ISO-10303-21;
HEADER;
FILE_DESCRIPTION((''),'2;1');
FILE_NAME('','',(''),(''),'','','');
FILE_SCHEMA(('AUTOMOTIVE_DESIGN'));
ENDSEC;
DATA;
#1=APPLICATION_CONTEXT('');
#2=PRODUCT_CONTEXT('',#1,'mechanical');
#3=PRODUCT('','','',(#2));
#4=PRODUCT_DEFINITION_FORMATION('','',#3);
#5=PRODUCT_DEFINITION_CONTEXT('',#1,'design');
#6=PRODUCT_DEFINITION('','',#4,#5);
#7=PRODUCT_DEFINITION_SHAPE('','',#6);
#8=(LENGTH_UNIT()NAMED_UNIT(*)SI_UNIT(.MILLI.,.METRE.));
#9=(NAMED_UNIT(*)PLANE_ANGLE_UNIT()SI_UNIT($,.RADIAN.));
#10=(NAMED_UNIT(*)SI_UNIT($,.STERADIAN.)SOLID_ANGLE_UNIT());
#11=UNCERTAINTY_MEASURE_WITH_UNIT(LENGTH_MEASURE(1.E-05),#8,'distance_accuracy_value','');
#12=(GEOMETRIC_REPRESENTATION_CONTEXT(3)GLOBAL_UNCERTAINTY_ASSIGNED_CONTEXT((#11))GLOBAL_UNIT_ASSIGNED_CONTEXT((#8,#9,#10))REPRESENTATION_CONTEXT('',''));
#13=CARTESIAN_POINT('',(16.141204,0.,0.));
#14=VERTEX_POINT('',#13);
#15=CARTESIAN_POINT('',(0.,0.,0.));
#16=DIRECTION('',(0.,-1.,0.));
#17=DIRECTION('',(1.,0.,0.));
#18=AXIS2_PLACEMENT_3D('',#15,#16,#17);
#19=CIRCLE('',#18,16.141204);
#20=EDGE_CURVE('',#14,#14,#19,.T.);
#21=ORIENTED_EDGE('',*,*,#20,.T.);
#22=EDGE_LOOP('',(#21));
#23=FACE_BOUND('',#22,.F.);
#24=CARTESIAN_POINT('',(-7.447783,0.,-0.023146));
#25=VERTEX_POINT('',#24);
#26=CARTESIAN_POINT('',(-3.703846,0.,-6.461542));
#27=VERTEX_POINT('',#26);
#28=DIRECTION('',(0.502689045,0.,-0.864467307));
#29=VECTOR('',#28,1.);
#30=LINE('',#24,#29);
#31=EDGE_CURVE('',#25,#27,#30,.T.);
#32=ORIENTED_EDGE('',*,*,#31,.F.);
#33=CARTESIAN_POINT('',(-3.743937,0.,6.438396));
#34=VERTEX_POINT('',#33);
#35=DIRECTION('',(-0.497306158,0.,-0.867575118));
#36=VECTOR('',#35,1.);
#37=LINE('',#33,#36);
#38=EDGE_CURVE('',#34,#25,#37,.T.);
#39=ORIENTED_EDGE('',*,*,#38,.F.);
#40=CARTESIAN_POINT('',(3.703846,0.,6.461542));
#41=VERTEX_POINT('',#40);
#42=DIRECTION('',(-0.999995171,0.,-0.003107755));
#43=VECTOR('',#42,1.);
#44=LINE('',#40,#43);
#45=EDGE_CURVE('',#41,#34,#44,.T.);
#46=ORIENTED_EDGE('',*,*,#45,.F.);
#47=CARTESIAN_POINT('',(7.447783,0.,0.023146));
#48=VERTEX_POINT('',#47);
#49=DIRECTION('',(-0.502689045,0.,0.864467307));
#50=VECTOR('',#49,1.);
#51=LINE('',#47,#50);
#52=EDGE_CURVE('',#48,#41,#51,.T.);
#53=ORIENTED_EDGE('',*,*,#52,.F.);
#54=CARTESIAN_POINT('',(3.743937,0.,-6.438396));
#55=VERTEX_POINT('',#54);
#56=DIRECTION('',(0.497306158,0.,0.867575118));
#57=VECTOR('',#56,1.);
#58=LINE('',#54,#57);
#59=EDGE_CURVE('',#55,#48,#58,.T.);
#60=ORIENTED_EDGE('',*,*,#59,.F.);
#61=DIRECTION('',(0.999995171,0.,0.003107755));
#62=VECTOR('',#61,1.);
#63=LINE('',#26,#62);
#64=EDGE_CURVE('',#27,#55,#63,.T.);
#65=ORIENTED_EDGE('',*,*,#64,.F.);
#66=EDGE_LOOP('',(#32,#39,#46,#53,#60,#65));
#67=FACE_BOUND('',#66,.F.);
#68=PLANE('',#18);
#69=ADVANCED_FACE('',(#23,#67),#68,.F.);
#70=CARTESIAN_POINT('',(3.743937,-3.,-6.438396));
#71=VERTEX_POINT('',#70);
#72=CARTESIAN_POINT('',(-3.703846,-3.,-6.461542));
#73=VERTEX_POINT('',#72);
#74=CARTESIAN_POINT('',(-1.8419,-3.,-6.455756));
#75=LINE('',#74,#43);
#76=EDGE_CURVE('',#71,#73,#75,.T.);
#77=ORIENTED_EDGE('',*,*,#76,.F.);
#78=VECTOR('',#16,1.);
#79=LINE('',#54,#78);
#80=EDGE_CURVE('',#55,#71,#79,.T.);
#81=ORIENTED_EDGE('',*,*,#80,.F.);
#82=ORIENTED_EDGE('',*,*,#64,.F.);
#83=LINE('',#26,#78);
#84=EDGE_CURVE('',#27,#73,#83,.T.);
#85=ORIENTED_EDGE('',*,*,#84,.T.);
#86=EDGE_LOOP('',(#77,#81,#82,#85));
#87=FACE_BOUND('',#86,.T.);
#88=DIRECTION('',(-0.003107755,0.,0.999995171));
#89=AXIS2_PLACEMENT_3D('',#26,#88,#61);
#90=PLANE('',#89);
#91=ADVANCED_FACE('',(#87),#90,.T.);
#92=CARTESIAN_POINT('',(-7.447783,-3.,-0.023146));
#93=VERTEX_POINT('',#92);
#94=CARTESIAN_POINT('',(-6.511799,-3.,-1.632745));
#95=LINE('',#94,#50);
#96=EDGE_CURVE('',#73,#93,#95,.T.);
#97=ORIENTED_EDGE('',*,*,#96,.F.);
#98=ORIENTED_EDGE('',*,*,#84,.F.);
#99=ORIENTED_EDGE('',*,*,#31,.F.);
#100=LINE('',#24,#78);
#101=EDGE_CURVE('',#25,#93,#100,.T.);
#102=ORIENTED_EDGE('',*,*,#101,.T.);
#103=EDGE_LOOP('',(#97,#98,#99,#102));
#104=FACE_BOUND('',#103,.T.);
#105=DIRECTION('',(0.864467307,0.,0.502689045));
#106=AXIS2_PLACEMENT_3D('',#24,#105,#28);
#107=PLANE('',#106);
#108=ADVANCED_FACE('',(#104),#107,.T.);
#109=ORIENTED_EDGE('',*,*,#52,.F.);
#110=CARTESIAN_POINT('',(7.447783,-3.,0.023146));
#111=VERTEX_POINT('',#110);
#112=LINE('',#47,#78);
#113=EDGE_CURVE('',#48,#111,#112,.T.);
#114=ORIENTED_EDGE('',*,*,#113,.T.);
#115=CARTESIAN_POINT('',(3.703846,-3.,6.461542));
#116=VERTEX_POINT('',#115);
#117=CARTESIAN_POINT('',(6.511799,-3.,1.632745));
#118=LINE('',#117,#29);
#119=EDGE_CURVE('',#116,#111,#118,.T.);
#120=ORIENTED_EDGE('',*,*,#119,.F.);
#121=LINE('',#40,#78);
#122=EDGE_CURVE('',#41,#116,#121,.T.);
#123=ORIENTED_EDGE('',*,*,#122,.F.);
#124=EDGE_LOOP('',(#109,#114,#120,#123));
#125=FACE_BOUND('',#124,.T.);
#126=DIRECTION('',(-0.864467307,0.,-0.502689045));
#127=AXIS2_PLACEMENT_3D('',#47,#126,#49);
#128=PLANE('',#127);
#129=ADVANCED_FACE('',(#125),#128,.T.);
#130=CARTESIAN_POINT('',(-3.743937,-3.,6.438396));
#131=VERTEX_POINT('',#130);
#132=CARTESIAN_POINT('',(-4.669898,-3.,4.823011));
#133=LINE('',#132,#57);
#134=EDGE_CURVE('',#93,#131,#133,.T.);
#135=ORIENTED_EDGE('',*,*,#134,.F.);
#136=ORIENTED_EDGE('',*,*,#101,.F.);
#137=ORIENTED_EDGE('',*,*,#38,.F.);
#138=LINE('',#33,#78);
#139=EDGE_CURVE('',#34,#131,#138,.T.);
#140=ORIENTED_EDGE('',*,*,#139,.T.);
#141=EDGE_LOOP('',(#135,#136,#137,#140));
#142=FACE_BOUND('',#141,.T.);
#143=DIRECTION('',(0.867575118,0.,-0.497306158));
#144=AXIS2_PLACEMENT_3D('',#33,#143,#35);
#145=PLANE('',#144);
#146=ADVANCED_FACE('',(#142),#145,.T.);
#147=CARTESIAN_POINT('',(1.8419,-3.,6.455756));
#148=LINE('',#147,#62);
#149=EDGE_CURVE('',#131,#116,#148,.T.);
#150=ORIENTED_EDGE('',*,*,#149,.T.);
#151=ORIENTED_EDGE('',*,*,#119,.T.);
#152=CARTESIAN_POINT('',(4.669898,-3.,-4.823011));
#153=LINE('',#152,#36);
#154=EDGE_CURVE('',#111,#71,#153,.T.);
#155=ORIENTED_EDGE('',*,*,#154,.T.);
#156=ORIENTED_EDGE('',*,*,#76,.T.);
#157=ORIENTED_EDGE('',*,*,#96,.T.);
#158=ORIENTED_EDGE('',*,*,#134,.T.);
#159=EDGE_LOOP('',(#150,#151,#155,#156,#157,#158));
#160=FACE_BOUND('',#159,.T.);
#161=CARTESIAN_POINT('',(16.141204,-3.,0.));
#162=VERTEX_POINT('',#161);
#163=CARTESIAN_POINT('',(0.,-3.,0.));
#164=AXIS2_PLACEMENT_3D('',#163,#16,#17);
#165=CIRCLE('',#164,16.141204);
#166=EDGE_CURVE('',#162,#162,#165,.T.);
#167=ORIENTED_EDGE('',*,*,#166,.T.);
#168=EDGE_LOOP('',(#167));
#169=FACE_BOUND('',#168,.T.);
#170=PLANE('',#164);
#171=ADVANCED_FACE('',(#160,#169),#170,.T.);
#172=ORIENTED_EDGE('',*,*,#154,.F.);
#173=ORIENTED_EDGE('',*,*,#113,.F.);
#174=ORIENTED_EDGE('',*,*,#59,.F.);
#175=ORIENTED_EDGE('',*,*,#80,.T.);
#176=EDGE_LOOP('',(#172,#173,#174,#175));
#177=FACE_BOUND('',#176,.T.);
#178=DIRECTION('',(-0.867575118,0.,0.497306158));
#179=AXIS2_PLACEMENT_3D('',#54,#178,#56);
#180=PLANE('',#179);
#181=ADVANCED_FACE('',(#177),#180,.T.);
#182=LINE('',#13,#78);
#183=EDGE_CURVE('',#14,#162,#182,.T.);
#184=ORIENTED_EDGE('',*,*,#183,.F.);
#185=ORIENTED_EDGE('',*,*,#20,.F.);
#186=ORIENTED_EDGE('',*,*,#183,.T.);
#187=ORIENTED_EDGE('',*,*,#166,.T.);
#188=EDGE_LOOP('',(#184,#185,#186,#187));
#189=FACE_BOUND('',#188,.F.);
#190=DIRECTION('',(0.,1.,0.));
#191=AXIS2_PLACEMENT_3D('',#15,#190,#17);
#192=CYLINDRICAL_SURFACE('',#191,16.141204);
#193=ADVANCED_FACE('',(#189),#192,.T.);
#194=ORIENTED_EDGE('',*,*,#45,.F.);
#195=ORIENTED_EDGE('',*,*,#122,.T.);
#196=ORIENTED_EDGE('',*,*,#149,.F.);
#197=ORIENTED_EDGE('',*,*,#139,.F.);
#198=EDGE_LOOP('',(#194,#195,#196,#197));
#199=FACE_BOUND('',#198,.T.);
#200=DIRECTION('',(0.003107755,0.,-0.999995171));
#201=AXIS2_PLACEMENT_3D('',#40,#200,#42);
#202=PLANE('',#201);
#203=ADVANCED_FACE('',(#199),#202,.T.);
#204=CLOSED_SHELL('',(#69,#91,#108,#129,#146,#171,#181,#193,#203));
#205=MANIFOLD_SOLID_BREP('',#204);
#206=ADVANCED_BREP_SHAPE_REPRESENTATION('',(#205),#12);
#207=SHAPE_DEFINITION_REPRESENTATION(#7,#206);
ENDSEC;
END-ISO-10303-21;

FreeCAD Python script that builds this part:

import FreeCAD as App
import Part
import Sketcher

V = App.Vector


def add_polygon(sketch, points):
    """Adds a closed chain of lines whose ends are joined by coincident constraints."""
    first, n = sketch.GeometryCount, len(points)
    for a, b in zip(points, points[1:] + points[:1]):
        sketch.addGeometry(Part.LineSegment(App.Vector(*a, 0), App.Vector(*b, 0)), False)
    for i in range(n):
        sketch.addConstraint(Sketcher.Constraint("Coincident", first + i, 2, first + (i + 1) % n, 1))

doc = App.newDocument("Part")
body = doc.addObject("PartDesign::Body", "Body")

# Sketch on XZ plane
sketch1 = body.newObject("Sketcher::SketchObject", "Sketch")
sketch1.AttachmentSupport = (doc.getObject("XZ_Plane"), [""])
sketch1.MapMode = "FlatFace"
sketch1.addGeometry(Part.Circle(V(0, 0, 0), V(0, 0, 1), 16), False)
sketch1.addConstraint(Sketcher.Constraint("Coincident", 0, 3, -1, 1))
sketch1.addConstraint(Sketcher.Constraint("Diameter", 0, 32.282408))
pad1 = body.newObject("PartDesign::Pad", "Pad")
pad1.Profile = sketch1
pad1.Length = 3

# Sketch on XZ plane
sketch2 = body.newObject("Sketcher::SketchObject", "Sketch001")
sketch2.AttachmentSupport = (doc.getObject("XZ_Plane"), [""])
sketch2.MapMode = "FlatFace"
add_polygon(sketch2, [(4, -6), (7, 0), (4, 6), (-4, 6), (-7, 0), (-4, -6)])  # lines 0-5
sketch2.addConstraint(Sketcher.Constraint("Symmetric", 0, 2, 3, 2, -1, 1))
sketch2.addConstraint(Sketcher.Constraint("Symmetric", 1, 2, 4, 2, -1, 1))
sketch2.addConstraint(Sketcher.Constraint("Symmetric", 2, 2, 5, 2, -1, 1))
sketch2.addConstraint(Sketcher.Constraint("Equal", 0, 1))
sketch2.addConstraint(Sketcher.Constraint("Equal", 1, 2))
sketch2.addConstraint(Sketcher.Constraint("Distance", 0, 7.447818))
sketch2.addConstraint(Sketcher.Constraint("DistanceY", -1, 1, 1, 2, 6.461542))
sketch2.addConstraint(Sketcher.Constraint("DistanceX", 2, 2, 0, 2, 11.19172))
sketch2.addConstraint(Sketcher.Constraint("DistanceY", 0, 2, 2, 2, 6.41525))
pocket1 = body.newObject("PartDesign::Pocket", "Pocket")
pocket1.Profile = sketch2
pocket1.Length = 25
pocket1.Reversed = True

doc.recompute()
